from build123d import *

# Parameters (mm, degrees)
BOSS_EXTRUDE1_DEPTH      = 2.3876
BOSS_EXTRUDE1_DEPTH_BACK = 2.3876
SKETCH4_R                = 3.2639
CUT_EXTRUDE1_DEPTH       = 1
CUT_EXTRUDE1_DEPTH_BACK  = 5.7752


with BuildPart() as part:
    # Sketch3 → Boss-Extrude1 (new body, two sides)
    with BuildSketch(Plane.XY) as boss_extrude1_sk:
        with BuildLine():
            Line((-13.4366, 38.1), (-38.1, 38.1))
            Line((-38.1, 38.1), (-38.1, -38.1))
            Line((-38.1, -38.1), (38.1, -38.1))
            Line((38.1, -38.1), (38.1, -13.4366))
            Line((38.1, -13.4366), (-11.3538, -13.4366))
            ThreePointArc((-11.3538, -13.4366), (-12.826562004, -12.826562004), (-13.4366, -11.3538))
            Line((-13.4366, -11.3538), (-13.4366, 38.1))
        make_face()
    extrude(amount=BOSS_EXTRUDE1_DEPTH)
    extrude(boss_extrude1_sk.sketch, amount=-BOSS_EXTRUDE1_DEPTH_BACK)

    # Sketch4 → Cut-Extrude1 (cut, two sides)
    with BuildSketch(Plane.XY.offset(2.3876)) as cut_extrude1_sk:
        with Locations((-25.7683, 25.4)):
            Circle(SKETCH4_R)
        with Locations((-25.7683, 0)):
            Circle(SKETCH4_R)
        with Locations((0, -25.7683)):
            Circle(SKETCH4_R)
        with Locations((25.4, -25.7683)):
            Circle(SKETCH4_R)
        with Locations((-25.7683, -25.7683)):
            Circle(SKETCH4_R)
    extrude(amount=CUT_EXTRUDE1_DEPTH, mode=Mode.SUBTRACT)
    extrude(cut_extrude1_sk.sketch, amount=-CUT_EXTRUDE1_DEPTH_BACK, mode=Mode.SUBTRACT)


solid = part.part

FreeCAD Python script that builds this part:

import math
import FreeCAD as App
import Part
import Sketcher
from FreeCAD import Vector
Q = App.Units.Quantity

doc = App.newDocument("Part")
body = doc.addObject("PartDesign::Body", "Body")

# Sketch on XY plane
sketch1 = body.newObject("Sketcher::SketchObject", "Sketch")
sketch1.AttachmentSupport = (doc.getObject("XY_Plane"), [""])
sketch1.MapMode = "FlatFace"
sketch1.addGeometry([
    Part.LineSegment(Vector(-13.4366, 38.1, 0), Vector(-38.1, 38.1, 0)),  # 0
    Part.LineSegment(Vector(-38.1, 38.1, 0), Vector(-38.1, -38.1, 0)),  # 1
    Part.LineSegment(Vector(-38.1, -38.1, 0), Vector(38.1, -38.1, 0)),  # 2
    Part.LineSegment(Vector(38.1, -38.1, 0), Vector(38.1, -13.4366, 0)),  # 3
    Part.LineSegment(Vector(38.1, -13.4366, 0), Vector(-11.3538, -13.4366, 0)),  # 4
    Part.ArcOfCircle(Part.Circle(Vector(-11.3538, -11.3538, 0), Vector(0, 0, 1), 2.0828), math.radians(180), math.radians(270)),  # 5
    Part.LineSegment(Vector(-13.4366, -11.3538, 0), Vector(-13.4366, 38.1, 0)),  # 6
], False)
sketch1.addConstraint([
    Sketcher.Constraint("Coincident", 0, 2, 1, 1),
    Sketcher.Constraint("Coincident", 1, 2, 2, 1),
    Sketcher.Constraint("Coincident", 2, 2, 3, 1),
    Sketcher.Constraint("Coincident", 3, 2, 4, 1),
    Sketcher.Constraint("Tangent", 4, 2, 5, 2),
    Sketcher.Constraint("Tangent", 5, 1, 6, 1),
    Sketcher.Constraint("Coincident", 6, 2, 0, 1),
    Sketcher.Constraint("Horizontal", 0),
    Sketcher.Constraint("Vertical", 1),
    Sketcher.Constraint("Horizontal", 2),
    Sketcher.Constraint("Vertical", 3),
    Sketcher.Constraint("Horizontal", 4),
    Sketcher.Constraint("Vertical", 6),
    Sketcher.Constraint("Symmetric", 0, 2, 2, 2, -1, 1),
    Sketcher.Constraint("Equal", 2, 1),
    Sketcher.Constraint("Equal", 0, 3),
    Sketcher.Constraint("DistanceX", 2, 1, 2, 2, Q("3 in")),
    Sketcher.Constraint("Radius", 5, Q("0.082 in")),
    Sketcher.Constraint("DistanceX", 0, 2, 0, 1, Q("0.971 in")),
])
pad1 = body.newObject("PartDesign::Pad", "Pad")
pad1.Profile = sketch1
pad1.Type = "TwoLengths"
pad1.Length = Q("0.094 in")
pad1.Length2 = Q("0.094 in")

# Sketch on XY plane
sketch2 = body.newObject("Sketcher::SketchObject", "Sketch001")
sketch2.AttachmentSupport = (doc.getObject("XY_Plane"), [""])
sketch2.MapMode = "FlatFace"
sketch2.AttachmentOffset = App.Placement(Vector(0, 0, 0.094 * 25.4), App.Rotation())
sketch2.addGeometry([
    Part.Circle(Vector(-25.7683, 25.4, 0), Vector(0, 0, 1), 3.2639),  # 0
    Part.Circle(Vector(-25.7683, 0, 0), Vector(0, 0, 1), 3.2639),  # 1
    Part.Circle(Vector(0, -25.7683, 0), Vector(0, 0, 1), 3.2639),  # 2
    Part.Circle(Vector(25.4, -25.7683, 0), Vector(0, 0, 1), 3.2639),  # 3
    Part.Circle(Vector(-25.7683, -25.7683, 0), Vector(0, 0, 1), 3.2639),  # 4
], False)
sketch2.addConstraint([
    Sketcher.Constraint("Equal", 0, 1),
    Sketcher.Constraint("Equal", 1, 2),
    Sketcher.Constraint("Equal", 2, 3),
    Sketcher.Constraint("Equal", 3, 4),
    Sketcher.Constraint("PointOnObject", 1, 3, -1),
    Sketcher.Constraint("PointOnObject", 2, 3, -2),
    Sketcher.Constraint("Horizontal", 2, 3, 3, 3),
    Sketcher.Constraint("Horizontal", 3, 3, 4, 3),
    Sketcher.Constraint("Vertical", 0, 3, 1, 3),
    Sketcher.Constraint("Vertical", 1, 3, 4, 3),
    Sketcher.Constraint("Diameter", 0, Q("0.257 in")),
    Sketcher.Constraint("DistanceY", -1, 1, 0, 3, Q("1 in")),
    Sketcher.Constraint("DistanceX", -1, 1, 3, 3, Q("1 in")),
    Sketcher.Constraint("DistanceX", 0, 3, -1, 1, Q("1.0145 in")),
    Sketcher.Constraint("DistanceY", 2, 3, -1, 1, Q("1.0145 in")),
])
pocket1 = body.newObject("PartDesign::Pocket", "Pocket")
pocket1.Profile = sketch2
pocket1.Type = "ThroughAll"
pocket1.Midplane = True

doc.recompute()
